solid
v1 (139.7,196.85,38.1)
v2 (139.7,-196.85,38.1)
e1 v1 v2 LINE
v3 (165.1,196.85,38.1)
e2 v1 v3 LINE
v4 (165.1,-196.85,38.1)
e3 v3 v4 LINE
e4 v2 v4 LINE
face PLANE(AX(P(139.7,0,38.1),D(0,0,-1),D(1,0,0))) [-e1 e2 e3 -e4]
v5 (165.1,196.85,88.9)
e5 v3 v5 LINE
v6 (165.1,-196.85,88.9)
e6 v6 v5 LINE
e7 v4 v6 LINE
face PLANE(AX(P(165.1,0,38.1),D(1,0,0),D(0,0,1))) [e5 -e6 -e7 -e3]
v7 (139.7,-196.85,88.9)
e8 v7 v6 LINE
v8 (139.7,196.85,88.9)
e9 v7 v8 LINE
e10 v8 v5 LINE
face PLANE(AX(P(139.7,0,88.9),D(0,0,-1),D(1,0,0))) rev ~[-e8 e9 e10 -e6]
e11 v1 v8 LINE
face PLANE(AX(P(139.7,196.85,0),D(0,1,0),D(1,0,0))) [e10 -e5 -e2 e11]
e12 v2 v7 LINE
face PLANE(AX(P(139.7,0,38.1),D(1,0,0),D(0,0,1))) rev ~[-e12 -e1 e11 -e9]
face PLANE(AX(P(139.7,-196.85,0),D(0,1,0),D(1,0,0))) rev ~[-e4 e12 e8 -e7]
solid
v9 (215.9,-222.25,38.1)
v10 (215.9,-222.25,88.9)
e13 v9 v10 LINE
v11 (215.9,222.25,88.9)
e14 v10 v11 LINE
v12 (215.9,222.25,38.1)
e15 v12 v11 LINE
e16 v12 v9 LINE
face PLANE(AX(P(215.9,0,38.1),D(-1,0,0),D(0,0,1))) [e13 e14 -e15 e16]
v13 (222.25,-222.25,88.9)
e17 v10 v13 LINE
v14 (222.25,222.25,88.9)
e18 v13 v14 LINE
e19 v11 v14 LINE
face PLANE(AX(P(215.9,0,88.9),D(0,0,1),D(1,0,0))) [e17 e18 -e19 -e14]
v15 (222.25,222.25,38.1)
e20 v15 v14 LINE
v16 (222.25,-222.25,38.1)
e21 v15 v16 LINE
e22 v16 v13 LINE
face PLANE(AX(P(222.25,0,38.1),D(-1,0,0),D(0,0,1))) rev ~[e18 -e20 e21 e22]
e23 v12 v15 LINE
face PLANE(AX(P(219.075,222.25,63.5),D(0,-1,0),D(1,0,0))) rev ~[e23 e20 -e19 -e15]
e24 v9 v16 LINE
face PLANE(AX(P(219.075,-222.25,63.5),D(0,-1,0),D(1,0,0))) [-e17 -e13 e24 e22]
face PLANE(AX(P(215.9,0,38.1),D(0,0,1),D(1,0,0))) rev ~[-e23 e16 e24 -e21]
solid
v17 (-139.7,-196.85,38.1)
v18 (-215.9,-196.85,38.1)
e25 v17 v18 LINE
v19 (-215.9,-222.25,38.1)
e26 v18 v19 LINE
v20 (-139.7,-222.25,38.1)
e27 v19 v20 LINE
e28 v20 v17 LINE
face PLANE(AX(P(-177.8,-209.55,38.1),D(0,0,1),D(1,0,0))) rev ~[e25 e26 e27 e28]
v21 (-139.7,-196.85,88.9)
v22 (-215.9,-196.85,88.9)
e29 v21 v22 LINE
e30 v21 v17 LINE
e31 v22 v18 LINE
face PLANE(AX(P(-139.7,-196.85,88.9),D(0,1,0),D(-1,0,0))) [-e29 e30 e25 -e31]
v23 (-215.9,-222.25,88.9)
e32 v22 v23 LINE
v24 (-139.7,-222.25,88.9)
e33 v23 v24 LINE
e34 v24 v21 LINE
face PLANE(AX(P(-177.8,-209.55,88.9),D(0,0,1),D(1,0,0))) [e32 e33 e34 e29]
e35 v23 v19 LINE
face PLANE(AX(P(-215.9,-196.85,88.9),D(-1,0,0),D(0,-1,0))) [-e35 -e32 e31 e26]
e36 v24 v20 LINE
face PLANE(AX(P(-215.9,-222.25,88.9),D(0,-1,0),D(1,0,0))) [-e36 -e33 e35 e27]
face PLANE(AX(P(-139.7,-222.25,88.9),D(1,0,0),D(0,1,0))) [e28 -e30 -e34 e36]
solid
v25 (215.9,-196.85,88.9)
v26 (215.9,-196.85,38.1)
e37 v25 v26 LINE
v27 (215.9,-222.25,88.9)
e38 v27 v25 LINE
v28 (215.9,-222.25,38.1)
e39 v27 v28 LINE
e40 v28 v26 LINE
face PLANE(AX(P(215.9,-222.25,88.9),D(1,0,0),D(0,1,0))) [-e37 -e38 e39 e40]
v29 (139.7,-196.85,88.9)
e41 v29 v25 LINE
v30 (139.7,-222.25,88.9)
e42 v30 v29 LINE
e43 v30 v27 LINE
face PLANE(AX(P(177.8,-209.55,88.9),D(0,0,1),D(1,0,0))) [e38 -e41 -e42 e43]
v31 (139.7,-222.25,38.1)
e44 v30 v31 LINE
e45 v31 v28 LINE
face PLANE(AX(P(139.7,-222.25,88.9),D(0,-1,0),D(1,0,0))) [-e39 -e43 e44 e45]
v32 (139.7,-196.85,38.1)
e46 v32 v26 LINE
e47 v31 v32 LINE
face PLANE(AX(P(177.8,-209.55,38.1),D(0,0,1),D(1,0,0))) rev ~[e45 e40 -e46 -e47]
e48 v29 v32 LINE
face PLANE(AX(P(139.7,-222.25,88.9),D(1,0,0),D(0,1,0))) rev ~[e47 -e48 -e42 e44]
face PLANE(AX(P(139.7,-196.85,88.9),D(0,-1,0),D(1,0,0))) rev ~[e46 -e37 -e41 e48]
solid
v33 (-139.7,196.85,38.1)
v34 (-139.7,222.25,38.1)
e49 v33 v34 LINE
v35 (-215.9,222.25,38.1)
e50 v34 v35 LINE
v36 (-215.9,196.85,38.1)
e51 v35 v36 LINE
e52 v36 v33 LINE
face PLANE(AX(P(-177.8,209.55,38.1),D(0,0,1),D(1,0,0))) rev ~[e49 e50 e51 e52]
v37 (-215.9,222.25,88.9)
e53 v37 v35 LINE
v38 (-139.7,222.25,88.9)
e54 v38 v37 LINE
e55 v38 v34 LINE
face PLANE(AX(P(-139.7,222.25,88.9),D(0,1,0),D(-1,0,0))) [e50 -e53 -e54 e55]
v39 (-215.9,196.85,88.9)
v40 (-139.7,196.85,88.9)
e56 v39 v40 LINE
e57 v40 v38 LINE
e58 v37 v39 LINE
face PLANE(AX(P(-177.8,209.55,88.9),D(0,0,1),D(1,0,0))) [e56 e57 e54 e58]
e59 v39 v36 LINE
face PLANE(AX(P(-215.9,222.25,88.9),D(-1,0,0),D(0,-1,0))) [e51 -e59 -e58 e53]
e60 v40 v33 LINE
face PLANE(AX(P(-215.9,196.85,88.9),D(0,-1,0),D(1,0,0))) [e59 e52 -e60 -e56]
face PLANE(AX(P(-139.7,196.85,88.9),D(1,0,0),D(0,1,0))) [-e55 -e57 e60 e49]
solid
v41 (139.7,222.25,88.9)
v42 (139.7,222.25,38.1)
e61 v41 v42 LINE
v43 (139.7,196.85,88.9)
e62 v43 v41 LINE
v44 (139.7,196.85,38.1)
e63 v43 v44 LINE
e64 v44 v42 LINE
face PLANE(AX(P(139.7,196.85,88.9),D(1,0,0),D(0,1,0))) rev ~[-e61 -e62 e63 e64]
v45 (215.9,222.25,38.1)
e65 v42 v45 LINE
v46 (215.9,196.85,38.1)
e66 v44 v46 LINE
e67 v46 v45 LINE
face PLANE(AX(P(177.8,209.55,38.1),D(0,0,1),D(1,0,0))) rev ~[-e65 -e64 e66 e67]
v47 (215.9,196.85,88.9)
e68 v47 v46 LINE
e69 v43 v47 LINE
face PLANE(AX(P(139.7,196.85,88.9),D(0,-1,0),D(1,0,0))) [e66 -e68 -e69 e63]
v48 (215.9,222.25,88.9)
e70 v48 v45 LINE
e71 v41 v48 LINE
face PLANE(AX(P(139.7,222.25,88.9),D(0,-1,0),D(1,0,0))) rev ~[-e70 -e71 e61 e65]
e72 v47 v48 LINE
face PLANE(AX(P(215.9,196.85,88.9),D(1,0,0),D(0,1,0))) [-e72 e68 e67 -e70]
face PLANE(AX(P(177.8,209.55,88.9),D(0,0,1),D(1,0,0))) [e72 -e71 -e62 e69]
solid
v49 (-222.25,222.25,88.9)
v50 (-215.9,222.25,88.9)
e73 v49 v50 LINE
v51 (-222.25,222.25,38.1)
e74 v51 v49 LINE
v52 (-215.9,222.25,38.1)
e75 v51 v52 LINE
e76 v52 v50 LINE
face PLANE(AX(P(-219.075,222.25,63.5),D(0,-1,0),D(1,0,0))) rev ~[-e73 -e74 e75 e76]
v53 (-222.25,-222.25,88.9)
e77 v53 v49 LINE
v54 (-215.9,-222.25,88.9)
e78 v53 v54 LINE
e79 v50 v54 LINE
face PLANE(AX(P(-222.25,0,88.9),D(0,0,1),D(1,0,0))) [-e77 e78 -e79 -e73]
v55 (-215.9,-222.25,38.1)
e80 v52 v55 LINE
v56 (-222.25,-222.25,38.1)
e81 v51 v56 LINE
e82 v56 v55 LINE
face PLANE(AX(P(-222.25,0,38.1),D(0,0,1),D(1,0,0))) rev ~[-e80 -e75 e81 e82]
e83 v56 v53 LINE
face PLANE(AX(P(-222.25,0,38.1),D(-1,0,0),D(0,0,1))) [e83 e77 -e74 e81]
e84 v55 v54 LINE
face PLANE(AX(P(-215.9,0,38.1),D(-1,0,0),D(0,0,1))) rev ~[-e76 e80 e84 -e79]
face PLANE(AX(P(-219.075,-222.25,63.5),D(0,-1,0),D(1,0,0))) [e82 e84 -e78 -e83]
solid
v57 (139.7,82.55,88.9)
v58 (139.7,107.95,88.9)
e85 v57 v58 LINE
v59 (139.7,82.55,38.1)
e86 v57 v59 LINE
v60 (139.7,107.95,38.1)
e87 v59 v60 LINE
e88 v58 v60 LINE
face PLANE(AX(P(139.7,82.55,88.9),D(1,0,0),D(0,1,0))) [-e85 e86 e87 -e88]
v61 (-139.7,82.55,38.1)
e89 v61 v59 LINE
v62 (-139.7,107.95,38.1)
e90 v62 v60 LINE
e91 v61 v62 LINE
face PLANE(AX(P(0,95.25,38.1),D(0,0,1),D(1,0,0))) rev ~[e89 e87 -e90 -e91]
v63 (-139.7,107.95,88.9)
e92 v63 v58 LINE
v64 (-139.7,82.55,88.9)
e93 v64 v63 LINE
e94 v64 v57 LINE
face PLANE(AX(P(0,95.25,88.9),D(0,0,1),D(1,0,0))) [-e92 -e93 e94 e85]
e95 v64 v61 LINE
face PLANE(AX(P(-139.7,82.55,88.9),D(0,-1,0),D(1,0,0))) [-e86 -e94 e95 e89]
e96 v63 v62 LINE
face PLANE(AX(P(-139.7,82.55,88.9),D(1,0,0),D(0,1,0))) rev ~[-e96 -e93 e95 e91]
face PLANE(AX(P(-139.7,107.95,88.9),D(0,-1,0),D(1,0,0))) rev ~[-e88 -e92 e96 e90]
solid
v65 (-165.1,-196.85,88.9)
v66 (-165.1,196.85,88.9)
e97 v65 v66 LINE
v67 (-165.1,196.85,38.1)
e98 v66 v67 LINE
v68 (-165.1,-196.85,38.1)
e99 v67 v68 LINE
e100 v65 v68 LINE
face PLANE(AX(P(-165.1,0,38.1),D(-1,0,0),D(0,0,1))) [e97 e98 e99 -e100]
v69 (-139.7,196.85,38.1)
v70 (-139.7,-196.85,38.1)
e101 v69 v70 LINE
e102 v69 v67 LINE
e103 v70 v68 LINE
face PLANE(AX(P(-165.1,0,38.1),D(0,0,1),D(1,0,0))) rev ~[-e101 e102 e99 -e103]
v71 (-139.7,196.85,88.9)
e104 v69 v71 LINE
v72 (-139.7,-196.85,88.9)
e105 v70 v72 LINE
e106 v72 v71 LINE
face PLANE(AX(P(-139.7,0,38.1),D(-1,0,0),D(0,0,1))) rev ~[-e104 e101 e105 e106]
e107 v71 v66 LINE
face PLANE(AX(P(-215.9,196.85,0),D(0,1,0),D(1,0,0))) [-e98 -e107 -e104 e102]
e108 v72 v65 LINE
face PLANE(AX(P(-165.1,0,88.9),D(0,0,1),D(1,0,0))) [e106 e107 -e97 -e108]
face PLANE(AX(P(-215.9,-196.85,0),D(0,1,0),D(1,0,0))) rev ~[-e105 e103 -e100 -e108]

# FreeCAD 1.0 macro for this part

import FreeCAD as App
import Part
import Sketcher
from FreeCAD import Vector
Q = App.Units.Quantity

doc = App.newDocument("Part")
params = doc.addObject("Spreadsheet::Sheet", "Params")
for row, (alias, value) in enumerate([
    ("sketch1_width", "1 in"),
    ("sketch1_height", "2 in"),
    ("sketch1_width2", "0.25 in"),
    ("pad1_length", "17.5 in"),
    ("sketch2_width", "3 in"),
    ("sketch2_height", "1 in"),
    ("pocket1_length", "6.95 in"),
    ("sketch3_width", "3 in"),
    ("sketch3_width2", "11 in"),
    ("sketch3_height", "1 in"),
    ("pad2_length", "2 in"),
], start=1):
    params.set(f"A{row}", alias)
    params.set(f"B{row}", "=" + value)
    params.setAlias(f"B{row}", alias)

body = doc.addObject("PartDesign::Body", "Body")
body.AllowCompound = True

# Sketch on XZ plane
sketch1 = body.newObject("Sketcher::SketchObject", "Sketch")
sketch1.AttachmentSupport = (doc.getObject("XZ_Plane"), [""])
sketch1.MapMode = "FlatFace"
sketch1.addGeometry(Part.LineSegment(Vector(-222, 89, 0), Vector(-222, 38, 0)), False)
sketch1.addGeometry(Part.LineSegment(Vector(-222, 38, 0), Vector(-216, 38, 0)), False)
sketch1.addGeometry(Part.LineSegment(Vector(-216, 38, 0), Vector(-216, 89, 0)), False)
sketch1.addGeometry(Part.LineSegment(Vector(-216, 89, 0), Vector(-222, 89, 0)), False)
sketch1.addGeometry(Part.LineSegment(Vector(216, 89, 0), Vector(216, 38, 0)), False)
sketch1.addGeometry(Part.LineSegment(Vector(216, 38, 0), Vector(222, 38, 0)), False)
sketch1.addGeometry(Part.LineSegment(Vector(222, 38, 0), Vector(222, 89, 0)), False)
sketch1.addGeometry(Part.LineSegment(Vector(222, 89, 0), Vector(216, 89, 0)), False)
sketch1.addGeometry(Part.LineSegment(Vector(-165, 89, 0), Vector(-165, 38, 0)), False)
sketch1.addGeometry(Part.LineSegment(Vector(-165, 38, 0), Vector(-140, 38, 0)), False)
sketch1.addGeometry(Part.LineSegment(Vector(-140, 38, 0), Vector(-140, 89, 0)), False)
sketch1.addGeometry(Part.LineSegment(Vector(-140, 89, 0), Vector(-165, 89, 0)), False)
sketch1.addGeometry(Part.LineSegment(Vector(140, 89, 0), Vector(140, 38, 0)), False)
sketch1.addGeometry(Part.LineSegment(Vector(140, 38, 0), Vector(165, 38, 0)), False)
sketch1.addGeometry(Part.LineSegment(Vector(165, 38, 0), Vector(165, 89, 0)), False)
sketch1.addGeometry(Part.LineSegment(Vector(165, 89, 0), Vector(140, 89, 0)), False)
sketch1.addConstraint(Sketcher.Constraint("Coincident", 0, 2, 1, 1))
sketch1.addConstraint(Sketcher.Constraint("Coincident", 1, 2, 2, 1))
sketch1.addConstraint(Sketcher.Constraint("Coincident", 2, 2, 3, 1))
sketch1.addConstraint(Sketcher.Constraint("Coincident", 3, 2, 0, 1))
sketch1.addConstraint(Sketcher.Constraint("Coincident", 4, 2, 5, 1))
sketch1.addConstraint(Sketcher.Constraint("Coincident", 5, 2, 6, 1))
sketch1.addConstraint(Sketcher.Constraint("Coincident", 6, 2, 7, 1))
sketch1.addConstraint(Sketcher.Constraint("Coincident", 7, 2, 4, 1))
sketch1.addConstraint(Sketcher.Constraint("Coincident", 8, 2, 9, 1))
sketch1.addConstraint(Sketcher.Constraint("Coincident", 9, 2, 10, 1))
sketch1.addConstraint(Sketcher.Constraint("Coincident", 10, 2, 11, 1))
sketch1.addConstraint(Sketcher.Constraint("Coincident", 11, 2, 8, 1))
sketch1.addConstraint(Sketcher.Constraint("Coincident", 12, 2, 13, 1))
sketch1.addConstraint(Sketcher.Constraint("Coincident", 13, 2, 14, 1))
sketch1.addConstraint(Sketcher.Constraint("Coincident", 14, 2, 15, 1))
sketch1.addConstraint(Sketcher.Constraint("Coincident", 15, 2, 12, 1))
sketch1.addConstraint(Sketcher.Constraint("Vertical", 0))
sketch1.addConstraint(Sketcher.Constraint("Horizontal", 1))
sketch1.addConstraint(Sketcher.Constraint("Vertical", 2))
sketch1.addConstraint(Sketcher.Constraint("Horizontal", 3))
sketch1.addConstraint(Sketcher.Constraint("Vertical", 4))
sketch1.addConstraint(Sketcher.Constraint("Horizontal", 5))
sketch1.addConstraint(Sketcher.Constraint("Vertical", 6))
sketch1.addConstraint(Sketcher.Constraint("Horizontal", 7))
sketch1.addConstraint(Sketcher.Constraint("Vertical", 8))
sketch1.addConstraint(Sketcher.Constraint("Horizontal", 9))
sketch1.addConstraint(Sketcher.Constraint("Vertical", 10))
sketch1.addConstraint(Sketcher.Constraint("Horizontal", 11))
sketch1.addConstraint(Sketcher.Constraint("Vertical", 12))
sketch1.addConstraint(Sketcher.Constraint("Horizontal", 13))
sketch1.addConstraint(Sketcher.Constraint("Vertical", 14))
sketch1.addConstraint(Sketcher.Constraint("Horizontal", 15))
sketch1.addConstraint(Sketcher.Constraint("Symmetric", 1, 2, 4, 2, -2))
sketch1.addConstraint(Sketcher.Constraint("Symmetric", 3, 2, 6, 2, -2))
sketch1.addConstraint(Sketcher.Constraint("Symmetric", 9, 2, 12, 2, -2))
sketch1.addConstraint(Sketcher.Constraint("Symmetric", 11, 2, 14, 2, -2))
sketch1.addConstraint(Sketcher.Constraint("Horizontal", 5, 2, 8, 2))
sketch1.addConstraint(Sketcher.Constraint("Horizontal", 7, 2, 10, 2))
sketch1.addConstraint(Sketcher.Constraint("DistanceX", 9, 1, 9, 2, Q("1 in")))
sketch1.addConstraint(Sketcher.Constraint("DistanceY", 0, 2, 0, 1, Q("2 in")))
sketch1.addConstraint(Sketcher.Constraint("DistanceX", 1, 2, 4, 2, Q("17 in")))
sketch1.addConstraint(Sketcher.Constraint("DistanceX", 1, 2, 8, 2, Q("2 in")))
sketch1.addConstraint(Sketcher.Constraint("DistanceX", 1, 1, 1, 2, Q("0.25 in")))
sketch1.addConstraint(Sketcher.Constraint("DistanceY", -1, 1, 0, 2, Q("1.5 in")))
sketch1.setExpression("Constraints[38]", "Params.sketch1_width")
sketch1.setExpression("Constraints[39]", "Params.sketch1_height")
sketch1.setExpression("Constraints[42]", "Params.sketch1_width2")
pad1 = body.newObject("PartDesign::Pad", "Pad")
pad1.Profile = sketch1
pad1.setExpression("Length", "Params.pad1_length")
pad1.Midplane = True

# Sketch on XY plane
sketch2 = body.newObject("Sketcher::SketchObject", "Sketch001")
sketch2.AttachmentSupport = (doc.getObject("XY_Plane"), [""])
sketch2.MapMode = "FlatFace"
sketch2.addGeometry(Part.LineSegment(Vector(-216, 222, 0), Vector(-216, 197, 0)), False)
sketch2.addGeometry(Part.LineSegment(Vector(-216, 197, 0), Vector(-140, 197, 0)), False)
sketch2.addGeometry(Part.LineSegment(Vector(-140, 197, 0), Vector(-140, 222, 0)), False)
sketch2.addGeometry(Part.LineSegment(Vector(-140, 222, 0), Vector(-216, 222, 0)), False)
sketch2.addGeometry(Part.LineSegment(Vector(140, 222, 0), Vector(140, 197, 0)), False)
sketch2.addGeometry(Part.LineSegment(Vector(140, 197, 0), Vector(216, 197, 0)), False)
sketch2.addGeometry(Part.LineSegment(Vector(216, 197, 0), Vector(216, 222, 0)), False)
sketch2.addGeometry(Part.LineSegment(Vector(216, 222, 0), Vector(140, 222, 0)), False)
sketch2.addGeometry(Part.LineSegment(Vector(140, -197, 0), Vector(140, -222, 0)), False)
sketch2.addGeometry(Part.LineSegment(Vector(140, -222, 0), Vector(216, -222, 0)), False)
sketch2.addGeometry(Part.LineSegment(Vector(216, -222, 0), Vector(216, -197, 0)), False)
sketch2.addGeometry(Part.LineSegment(Vector(216, -197, 0), Vector(140, -197, 0)), False)
sketch2.addGeometry(Part.LineSegment(Vector(-216, -197, 0), Vector(-216, -222, 0)), False)
sketch2.addGeometry(Part.LineSegment(Vector(-216, -222, 0), Vector(-140, -222, 0)), False)
sketch2.addGeometry(Part.LineSegment(Vector(-140, -222, 0), Vector(-140, -197, 0)), False)
sketch2.addGeometry(Part.LineSegment(Vector(-140, -197, 0), Vector(-216, -197, 0)), False)
sketch2.addConstraint(Sketcher.Constraint("Coincident", 0, 2, 1, 1))
sketch2.addConstraint(Sketcher.Constraint("Coincident", 1, 2, 2, 1))
sketch2.addConstraint(Sketcher.Constraint("Coincident", 2, 2, 3, 1))
sketch2.addConstraint(Sketcher.Constraint("Coincident", 3, 2, 0, 1))
sketch2.addConstraint(Sketcher.Constraint("Coincident", 4, 2, 5, 1))
sketch2.addConstraint(Sketcher.Constraint("Coincident", 5, 2, 6, 1))
sketch2.addConstraint(Sketcher.Constraint("Coincident", 6, 2, 7, 1))
sketch2.addConstraint(Sketcher.Constraint("Coincident", 7, 2, 4, 1))
sketch2.addConstraint(Sketcher.Constraint("Coincident", 8, 2, 9, 1))
sketch2.addConstraint(Sketcher.Constraint("Coincident", 9, 2, 10, 1))
sketch2.addConstraint(Sketcher.Constraint("Coincident", 10, 2, 11, 1))
sketch2.addConstraint(Sketcher.Constraint("Coincident", 11, 2, 8, 1))
sketch2.addConstraint(Sketcher.Constraint("Coincident", 12, 2, 13, 1))
sketch2.addConstraint(Sketcher.Constraint("Coincident", 13, 2, 14, 1))
sketch2.addConstraint(Sketcher.Constraint("Coincident", 14, 2, 15, 1))
sketch2.addConstraint(Sketcher.Constraint("Coincident", 15, 2, 12, 1))
sketch2.addConstraint(Sketcher.Constraint("Vertical", 0))
sketch2.addConstraint(Sketcher.Constraint("Horizontal", 1))
sketch2.addConstraint(Sketcher.Constraint("Vertical", 2))
sketch2.addConstraint(Sketcher.Constraint("Horizontal", 3))
sketch2.addConstraint(Sketcher.Constraint("Vertical", 4))
sketch2.addConstraint(Sketcher.Constraint("Horizontal", 5))
sketch2.addConstraint(Sketcher.Constraint("Vertical", 6))
sketch2.addConstraint(Sketcher.Constraint("Horizontal", 7))
sketch2.addConstraint(Sketcher.Constraint("Vertical", 8))
sketch2.addConstraint(Sketcher.Constraint("Horizontal", 9))
sketch2.addConstraint(Sketcher.Constraint("Vertical", 10))
sketch2.addConstraint(Sketcher.Constraint("Horizontal", 11))
sketch2.addConstraint(Sketcher.Constraint("Vertical", 12))
sketch2.addConstraint(Sketcher.Constraint("Horizontal", 13))
sketch2.addConstraint(Sketcher.Constraint("Vertical", 14))
sketch2.addConstraint(Sketcher.Constraint("Horizontal", 15))
sketch2.addConstraint(Sketcher.Constraint("Symmetric", 2, 2, 8, 2, -1, 1))
sketch2.addConstraint(Sketcher.Constraint("Symmetric", 0, 2, 10, 2, -1, 1))
sketch2.addConstraint(Sketcher.Constraint("Symmetric", 6, 2, 12, 2, -1, 1))
sketch2.addConstraint(Sketcher.Constraint("Symmetric", 4, 2, 14, 2, -1, 1))
sketch2.addConstraint(Sketcher.Constraint("Symmetric", 1, 2, 4, 2, -2))
sketch2.addConstraint(Sketcher.Constraint("Symmetric", 3, 2, 6, 2, -2))
sketch2.addConstraint(Sketcher.Constraint("DistanceX", 1, 1, 1, 2, Q("3 in")))
sketch2.addConstraint(Sketcher.Constraint("DistanceY", 0, 2, 0, 1, Q("1 in")))
sketch2.addConstraint(Sketcher.Constraint("DistanceX", 1, 2, 4, 2, Q("11 in")))
sketch2.addConstraint(Sketcher.Constraint("DistanceY", 8, 2, 4, 2, Q("16.5 in")))
sketch2.setExpression("Constraints[38]", "Params.sketch2_width")
sketch2.setExpression("Constraints[39]", "Params.sketch2_height")
pocket1 = body.newObject("PartDesign::Pocket", "Pocket")
pocket1.Profile = sketch2
pocket1.setExpression("Length", "Params.pocket1_length")
pocket1.Reversed = True
body2 = doc.addObject("PartDesign::Body", "Body001")
body2.AllowCompound = True

# Sketch on XY plane
sketch3 = body2.newObject("Sketcher::SketchObject", "Sketch002")
sketch3.AttachmentSupport = (doc.getObject("XY_Plane001"), [""])
sketch3.MapMode = "FlatFace"
sketch3.AttachmentOffset = App.Placement(Vector(0, 0, 3.5 * 25.4), App.Rotation())
sketch3.addGeometry(Part.LineSegment(Vector(-140, 222, 0), Vector(-216, 222, 0)), False)
sketch3.addGeometry(Part.LineSegment(Vector(-216, 222, 0), Vector(-216, 197, 0)), False)
sketch3.addGeometry(Part.LineSegment(Vector(-216, 197, 0), Vector(-140, 197, 0)), False)
sketch3.addGeometry(Part.LineSegment(Vector(-140, 197, 0), Vector(-140, 222, 0)), False)
sketch3.addGeometry(Part.LineSegment(Vector(-140, -197, 0), Vector(-216, -197, 0)), False)
sketch3.addGeometry(Part.LineSegment(Vector(-216, -197, 0), Vector(-216, -222, 0)), False)
sketch3.addGeometry(Part.LineSegment(Vector(-216, -222, 0), Vector(-140, -222, 0)), False)
sketch3.addGeometry(Part.LineSegment(Vector(-140, -222, 0), Vector(-140, -197, 0)), False)
sketch3.addGeometry(Part.LineSegment(Vector(140, -197, 0), Vector(140, -222, 0)), False)
sketch3.addGeometry(Part.LineSegment(Vector(140, -222, 0), Vector(216, -222, 0)), False)
sketch3.addGeometry(Part.LineSegment(Vector(216, -222, 0), Vector(216, -197, 0)), False)
sketch3.addGeometry(Part.LineSegment(Vector(216, -197, 0), Vector(140, -197, 0)), False)
sketch3.addGeometry(Part.LineSegment(Vector(140, 222, 0), Vector(140, 197, 0)), False)
sketch3.addGeometry(Part.LineSegment(Vector(140, 197, 0), Vector(216, 197, 0)), False)
sketch3.addGeometry(Part.LineSegment(Vector(216, 197, 0), Vector(216, 222, 0)), False)
sketch3.addGeometry(Part.LineSegment(Vector(216, 222, 0), Vector(140, 222, 0)), False)
sketch3.addGeometry(Part.LineSegment(Vector(-140, 108, 0), Vector(-140, 83, 0)), False)
sketch3.addGeometry(Part.LineSegment(Vector(-140, 83, 0), Vector(140, 83, 0)), False)
sketch3.addGeometry(Part.LineSegment(Vector(140, 83, 0), Vector(140, 108, 0)), False)
sketch3.addGeometry(Part.LineSegment(Vector(140, 108, 0), Vector(-140, 108, 0)), False)
sketch3.addConstraint(Sketcher.Constraint("Coincident", 0, 2, 1, 1))
sketch3.addConstraint(Sketcher.Constraint("Coincident", 1, 2, 2, 1))
sketch3.addConstraint(Sketcher.Constraint("Coincident", 2, 2, 3, 1))
sketch3.addConstraint(Sketcher.Constraint("Coincident", 3, 2, 0, 1))
sketch3.addConstraint(Sketcher.Constraint("Coincident", 4, 2, 5, 1))
sketch3.addConstraint(Sketcher.Constraint("Coincident", 5, 2, 6, 1))
sketch3.addConstraint(Sketcher.Constraint("Coincident", 6, 2, 7, 1))
sketch3.addConstraint(Sketcher.Constraint("Coincident", 7, 2, 4, 1))
sketch3.addConstraint(Sketcher.Constraint("Coincident", 8, 2, 9, 1))
sketch3.addConstraint(Sketcher.Constraint("Coincident", 9, 2, 10, 1))
sketch3.addConstraint(Sketcher.Constraint("Coincident", 10, 2, 11, 1))
sketch3.addConstraint(Sketcher.Constraint("Coincident", 11, 2, 8, 1))
sketch3.addConstraint(Sketcher.Constraint("Coincident", 12, 2, 13, 1))
sketch3.addConstraint(Sketcher.Constraint("Coincident", 13, 2, 14, 1))
sketch3.addConstraint(Sketcher.Constraint("Coincident", 14, 2, 15, 1))
sketch3.addConstraint(Sketcher.Constraint("Coincident", 15, 2, 12, 1))
sketch3.addConstraint(Sketcher.Constraint("Coincident", 16, 2, 17, 1))
sketch3.addConstraint(Sketcher.Constraint("Coincident", 17, 2, 18, 1))
sketch3.addConstraint(Sketcher.Constraint("Coincident", 18, 2, 19, 1))
sketch3.addConstraint(Sketcher.Constraint("Coincident", 19, 2, 16, 1))
sketch3.addConstraint(Sketcher.Constraint("Horizontal", 0))
sketch3.addConstraint(Sketcher.Constraint("Vertical", 1))
sketch3.addConstraint(Sketcher.Constraint("Horizontal", 2))
sketch3.addConstraint(Sketcher.Constraint("Vertical", 3))
sketch3.addConstraint(Sketcher.Constraint("Horizontal", 4))
sketch3.addConstraint(Sketcher.Constraint("Vertical", 5))
sketch3.addConstraint(Sketcher.Constraint("Horizontal", 6))
sketch3.addConstraint(Sketcher.Constraint("Vertical", 7))
sketch3.addConstraint(Sketcher.Constraint("Vertical", 8))
sketch3.addConstraint(Sketcher.Constraint("Horizontal", 9))
sketch3.addConstraint(Sketcher.Constraint("Vertical", 10))
sketch3.addConstraint(Sketcher.Constraint("Horizontal", 11))
sketch3.addConstraint(Sketcher.Constraint("Vertical", 12))
sketch3.addConstraint(Sketcher.Constraint("Horizontal", 13))
sketch3.addConstraint(Sketcher.Constraint("Vertical", 14))
sketch3.addConstraint(Sketcher.Constraint("Horizontal", 15))
sketch3.addConstraint(Sketcher.Constraint("Vertical", 16))
sketch3.addConstraint(Sketcher.Constraint("Horizontal", 17))
sketch3.addConstraint(Sketcher.Constraint("Vertical", 18))
sketch3.addConstraint(Sketcher.Constraint("Horizontal", 19))
sketch3.addConstraint(Sketcher.Constraint("Symmetric", 3, 2, 8, 2, -1, 1))
sketch3.addConstraint(Sketcher.Constraint("Symmetric", 1, 2, 10, 2, -1, 1))
sketch3.addConstraint(Sketcher.Constraint("Symmetric", 7, 2, 12, 2, -1, 1))
sketch3.addConstraint(Sketcher.Constraint("Symmetric", 5, 2, 14, 2, -1, 1))
sketch3.addConstraint(Sketcher.Constraint("Symmetric", 6, 2, 8, 2, -2))
sketch3.addConstraint(Sketcher.Constraint("Symmetric", 4, 2, 10, 2, -2))
sketch3.addConstraint(Sketcher.Constraint("Vertical", 7, 2, 16, 2))
sketch3.addConstraint(Sketcher.Constraint("Vertical", 15, 2, 17, 2))
sketch3.addConstraint(Sketcher.Constraint("Equal", 14, 16))
sketch3.addConstraint(Sketcher.Constraint("DistanceX", 0, 2, 0, 1, Q("3 in")))
sketch3.addConstraint(Sketcher.Constraint("DistanceX", 17, 1, 17, 2, Q("11 in")))
sketch3.addConstraint(Sketcher.Constraint("DistanceY", 1, 2, 1, 1, Q("1 in")))
sketch3.addConstraint(Sketcher.Constraint("DistanceY", 7, 2, 16, 2, Q("11 in")))
sketch3.addConstraint(Sketcher.Constraint("DistanceY", 4, 2, 1, 2, Q("15.5 in")))
sketch3.setExpression("Constraints[49]", "Params.sketch3_width")
sketch3.setExpression("Constraints[50]", "Params.sketch3_width2")
sketch3.setExpression("Constraints[51]", "Params.sketch3_height")
pad2 = body2.newObject("PartDesign::Pad", "Pad001")
pad2.Profile = sketch3
pad2.setExpression("Length", "Params.pad2_length")
pad2.Reversed = True

doc.recompute()
